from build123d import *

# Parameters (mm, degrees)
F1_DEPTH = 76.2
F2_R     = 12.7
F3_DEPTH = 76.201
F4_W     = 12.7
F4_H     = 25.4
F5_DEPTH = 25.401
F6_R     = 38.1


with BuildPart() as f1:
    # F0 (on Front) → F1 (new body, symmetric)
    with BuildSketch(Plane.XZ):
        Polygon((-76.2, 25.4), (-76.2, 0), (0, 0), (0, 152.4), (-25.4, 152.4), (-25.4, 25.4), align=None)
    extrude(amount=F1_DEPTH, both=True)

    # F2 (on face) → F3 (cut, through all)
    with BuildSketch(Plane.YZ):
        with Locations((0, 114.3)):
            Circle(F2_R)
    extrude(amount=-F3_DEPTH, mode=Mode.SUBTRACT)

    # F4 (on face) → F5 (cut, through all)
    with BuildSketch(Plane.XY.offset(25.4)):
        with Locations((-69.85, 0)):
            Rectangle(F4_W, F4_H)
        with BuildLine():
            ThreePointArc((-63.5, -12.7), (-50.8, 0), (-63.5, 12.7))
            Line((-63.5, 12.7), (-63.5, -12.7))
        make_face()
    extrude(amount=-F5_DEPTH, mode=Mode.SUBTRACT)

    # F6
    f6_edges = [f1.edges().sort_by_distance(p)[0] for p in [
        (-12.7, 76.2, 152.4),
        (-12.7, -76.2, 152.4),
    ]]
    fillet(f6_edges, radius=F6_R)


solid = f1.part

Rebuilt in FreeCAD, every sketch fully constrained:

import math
import FreeCAD as App
import Part
import Sketcher
Q = App.Units.Quantity


def edges_at(feature, points):
    """Names of the edges that pass closest to the given points."""
    edges = feature.Shape.Edges
    near = lambda p: min(range(len(edges)), key=lambda i: edges[i].distToShape(Part.Vertex(*p))[0])
    return sorted({f"Edge{near(p) + 1}" for p in points})

doc = App.newDocument("Part")
body = doc.addObject("PartDesign::Body", "Body")

# Sketch on XZ plane
sketch1 = body.newObject("Sketcher::SketchObject", "Sketch")
sketch1.AttachmentSupport = (doc.getObject("XZ_Plane"), [""])
sketch1.MapMode = "FlatFace"
sketch1.addGeometry([
    Part.LineSegment(App.Vector(-76.2, 25.4, 0), App.Vector(-76.2, 0, 0)),  # 0
    Part.LineSegment(App.Vector(-76.2, 0, 0), App.Vector(0, 0, 0)),  # 1
    Part.LineSegment(App.Vector(0, 0, 0), App.Vector(0, 152.4, 0)),  # 2
    Part.LineSegment(App.Vector(0, 152.4, 0), App.Vector(-25.4, 152.4, 0)),  # 3
    Part.LineSegment(App.Vector(-25.4, 152.4, 0), App.Vector(-25.4, 25.4, 0)),  # 4
    Part.LineSegment(App.Vector(-25.4, 25.4, 0), App.Vector(-76.2, 25.4, 0)),  # 5
], False)
sketch1.addConstraint([
    Sketcher.Constraint("Coincident", 0, 2, 1, 1),
    Sketcher.Constraint("Coincident", 1, 2, 2, 1),
    Sketcher.Constraint("Coincident", 2, 2, 3, 1),
    Sketcher.Constraint("Coincident", 3, 2, 4, 1),
    Sketcher.Constraint("Coincident", 4, 2, 5, 1),
    Sketcher.Constraint("Coincident", 5, 2, 0, 1),
    Sketcher.Constraint("Vertical", 0),
    Sketcher.Constraint("Horizontal", 1),
    Sketcher.Constraint("Vertical", 2),
    Sketcher.Constraint("Horizontal", 3),
    Sketcher.Constraint("Vertical", 4),
    Sketcher.Constraint("Horizontal", 5),
    Sketcher.Constraint("Coincident", 1, 2, -1, 1),
    Sketcher.Constraint("Equal", 3, 0),
    Sketcher.Constraint("DistanceX", 1, 1, 1, 2, Q("3 in")),
    Sketcher.Constraint("DistanceX", 3, 2, 3, 1, Q("1 in")),
    Sketcher.Constraint("DistanceY", 2, 1, 2, 2, Q("6 in")),
])
pad1 = body.newObject("PartDesign::Pad", "Pad")
pad1.Profile = sketch1
pad1.Length = Q("6 in")
pad1.Midplane = True

# Sketch on YZ plane
sketch2 = body.newObject("Sketcher::SketchObject", "Sketch001")
sketch2.AttachmentSupport = (doc.getObject("YZ_Plane"), [""])
sketch2.MapMode = "FlatFace"
sketch2.addGeometry(Part.Circle(App.Vector(0, 114.3, 0), App.Vector(0, 0, 1), 12.7), False)
sketch2.addConstraint([
    Sketcher.Constraint("PointOnObject", 0, 3, -2),
    Sketcher.Constraint("Diameter", 0, Q("1 in")),
    Sketcher.Constraint("DistanceY", -1, 1, 0, 3, Q("4.5 in")),
])
pocket1 = body.newObject("PartDesign::Pocket", "Pocket")
pocket1.Profile = sketch2
pocket1.Type = "ThroughAll"

# Sketch on XY plane
sketch3 = body.newObject("Sketcher::SketchObject", "Sketch002")
sketch3.AttachmentSupport = (doc.getObject("XY_Plane"), [""])
sketch3.MapMode = "FlatFace"
sketch3.AttachmentOffset = App.Placement(App.Vector(0, 0, 1 * 25.4), App.Rotation())
sketch3.addGeometry([
    Part.LineSegment(App.Vector(-76.2, 12.7, 0), App.Vector(-76.2, -12.7, 0)),
    Part.LineSegment(App.Vector(-76.2, -12.7, 0), App.Vector(-63.5, -12.7, 0)),
    Part.ArcOfCircle(Part.Circle(App.Vector(-63.5, 0, 0), App.Vector(0, 0, 1), 12.7), math.radians(-90), math.radians(90)),
    Part.LineSegment(App.Vector(-63.5, 12.7, 0), App.Vector(-76.2, 12.7, 0)),
], False)
sketch3.addConstraint([
    Sketcher.Constraint("Coincident", 0, 2, 1, 1),
    Sketcher.Constraint("Tangent", 1, 2, 2, 1),
    Sketcher.Constraint("Tangent", 2, 2, 3, 1),
    Sketcher.Constraint("Coincident", 3, 2, 0, 1),
    Sketcher.Constraint("Vertical", 0),
    Sketcher.Constraint("Horizontal", 1),
    Sketcher.Constraint("Horizontal", 3),
    Sketcher.Constraint("PointOnObject", 2, 3, -1),
    Sketcher.Constraint("Radius", 2, Q("0.5 in")),
    Sketcher.Constraint("DistanceX", 1, 1, 1, 2, Q("0.5 in")),
    Sketcher.Constraint("DistanceX", 0, 2, -1, 1, Q("3 in")),
])
pocket2 = body.newObject("PartDesign::Pocket", "Pocket001")
pocket2.Profile = sketch3
pocket2.Type = "ThroughAll"
doc.recompute()

fillet = body.newObject("PartDesign::Fillet", "Fillet")
fillet.Base = (pocket2, edges_at(pocket2, [(-12.7, 76.2, 152.4), (-12.7, -76.2, 152.4)]))
fillet.Radius = Q("1.5 in")

doc.recompute()
